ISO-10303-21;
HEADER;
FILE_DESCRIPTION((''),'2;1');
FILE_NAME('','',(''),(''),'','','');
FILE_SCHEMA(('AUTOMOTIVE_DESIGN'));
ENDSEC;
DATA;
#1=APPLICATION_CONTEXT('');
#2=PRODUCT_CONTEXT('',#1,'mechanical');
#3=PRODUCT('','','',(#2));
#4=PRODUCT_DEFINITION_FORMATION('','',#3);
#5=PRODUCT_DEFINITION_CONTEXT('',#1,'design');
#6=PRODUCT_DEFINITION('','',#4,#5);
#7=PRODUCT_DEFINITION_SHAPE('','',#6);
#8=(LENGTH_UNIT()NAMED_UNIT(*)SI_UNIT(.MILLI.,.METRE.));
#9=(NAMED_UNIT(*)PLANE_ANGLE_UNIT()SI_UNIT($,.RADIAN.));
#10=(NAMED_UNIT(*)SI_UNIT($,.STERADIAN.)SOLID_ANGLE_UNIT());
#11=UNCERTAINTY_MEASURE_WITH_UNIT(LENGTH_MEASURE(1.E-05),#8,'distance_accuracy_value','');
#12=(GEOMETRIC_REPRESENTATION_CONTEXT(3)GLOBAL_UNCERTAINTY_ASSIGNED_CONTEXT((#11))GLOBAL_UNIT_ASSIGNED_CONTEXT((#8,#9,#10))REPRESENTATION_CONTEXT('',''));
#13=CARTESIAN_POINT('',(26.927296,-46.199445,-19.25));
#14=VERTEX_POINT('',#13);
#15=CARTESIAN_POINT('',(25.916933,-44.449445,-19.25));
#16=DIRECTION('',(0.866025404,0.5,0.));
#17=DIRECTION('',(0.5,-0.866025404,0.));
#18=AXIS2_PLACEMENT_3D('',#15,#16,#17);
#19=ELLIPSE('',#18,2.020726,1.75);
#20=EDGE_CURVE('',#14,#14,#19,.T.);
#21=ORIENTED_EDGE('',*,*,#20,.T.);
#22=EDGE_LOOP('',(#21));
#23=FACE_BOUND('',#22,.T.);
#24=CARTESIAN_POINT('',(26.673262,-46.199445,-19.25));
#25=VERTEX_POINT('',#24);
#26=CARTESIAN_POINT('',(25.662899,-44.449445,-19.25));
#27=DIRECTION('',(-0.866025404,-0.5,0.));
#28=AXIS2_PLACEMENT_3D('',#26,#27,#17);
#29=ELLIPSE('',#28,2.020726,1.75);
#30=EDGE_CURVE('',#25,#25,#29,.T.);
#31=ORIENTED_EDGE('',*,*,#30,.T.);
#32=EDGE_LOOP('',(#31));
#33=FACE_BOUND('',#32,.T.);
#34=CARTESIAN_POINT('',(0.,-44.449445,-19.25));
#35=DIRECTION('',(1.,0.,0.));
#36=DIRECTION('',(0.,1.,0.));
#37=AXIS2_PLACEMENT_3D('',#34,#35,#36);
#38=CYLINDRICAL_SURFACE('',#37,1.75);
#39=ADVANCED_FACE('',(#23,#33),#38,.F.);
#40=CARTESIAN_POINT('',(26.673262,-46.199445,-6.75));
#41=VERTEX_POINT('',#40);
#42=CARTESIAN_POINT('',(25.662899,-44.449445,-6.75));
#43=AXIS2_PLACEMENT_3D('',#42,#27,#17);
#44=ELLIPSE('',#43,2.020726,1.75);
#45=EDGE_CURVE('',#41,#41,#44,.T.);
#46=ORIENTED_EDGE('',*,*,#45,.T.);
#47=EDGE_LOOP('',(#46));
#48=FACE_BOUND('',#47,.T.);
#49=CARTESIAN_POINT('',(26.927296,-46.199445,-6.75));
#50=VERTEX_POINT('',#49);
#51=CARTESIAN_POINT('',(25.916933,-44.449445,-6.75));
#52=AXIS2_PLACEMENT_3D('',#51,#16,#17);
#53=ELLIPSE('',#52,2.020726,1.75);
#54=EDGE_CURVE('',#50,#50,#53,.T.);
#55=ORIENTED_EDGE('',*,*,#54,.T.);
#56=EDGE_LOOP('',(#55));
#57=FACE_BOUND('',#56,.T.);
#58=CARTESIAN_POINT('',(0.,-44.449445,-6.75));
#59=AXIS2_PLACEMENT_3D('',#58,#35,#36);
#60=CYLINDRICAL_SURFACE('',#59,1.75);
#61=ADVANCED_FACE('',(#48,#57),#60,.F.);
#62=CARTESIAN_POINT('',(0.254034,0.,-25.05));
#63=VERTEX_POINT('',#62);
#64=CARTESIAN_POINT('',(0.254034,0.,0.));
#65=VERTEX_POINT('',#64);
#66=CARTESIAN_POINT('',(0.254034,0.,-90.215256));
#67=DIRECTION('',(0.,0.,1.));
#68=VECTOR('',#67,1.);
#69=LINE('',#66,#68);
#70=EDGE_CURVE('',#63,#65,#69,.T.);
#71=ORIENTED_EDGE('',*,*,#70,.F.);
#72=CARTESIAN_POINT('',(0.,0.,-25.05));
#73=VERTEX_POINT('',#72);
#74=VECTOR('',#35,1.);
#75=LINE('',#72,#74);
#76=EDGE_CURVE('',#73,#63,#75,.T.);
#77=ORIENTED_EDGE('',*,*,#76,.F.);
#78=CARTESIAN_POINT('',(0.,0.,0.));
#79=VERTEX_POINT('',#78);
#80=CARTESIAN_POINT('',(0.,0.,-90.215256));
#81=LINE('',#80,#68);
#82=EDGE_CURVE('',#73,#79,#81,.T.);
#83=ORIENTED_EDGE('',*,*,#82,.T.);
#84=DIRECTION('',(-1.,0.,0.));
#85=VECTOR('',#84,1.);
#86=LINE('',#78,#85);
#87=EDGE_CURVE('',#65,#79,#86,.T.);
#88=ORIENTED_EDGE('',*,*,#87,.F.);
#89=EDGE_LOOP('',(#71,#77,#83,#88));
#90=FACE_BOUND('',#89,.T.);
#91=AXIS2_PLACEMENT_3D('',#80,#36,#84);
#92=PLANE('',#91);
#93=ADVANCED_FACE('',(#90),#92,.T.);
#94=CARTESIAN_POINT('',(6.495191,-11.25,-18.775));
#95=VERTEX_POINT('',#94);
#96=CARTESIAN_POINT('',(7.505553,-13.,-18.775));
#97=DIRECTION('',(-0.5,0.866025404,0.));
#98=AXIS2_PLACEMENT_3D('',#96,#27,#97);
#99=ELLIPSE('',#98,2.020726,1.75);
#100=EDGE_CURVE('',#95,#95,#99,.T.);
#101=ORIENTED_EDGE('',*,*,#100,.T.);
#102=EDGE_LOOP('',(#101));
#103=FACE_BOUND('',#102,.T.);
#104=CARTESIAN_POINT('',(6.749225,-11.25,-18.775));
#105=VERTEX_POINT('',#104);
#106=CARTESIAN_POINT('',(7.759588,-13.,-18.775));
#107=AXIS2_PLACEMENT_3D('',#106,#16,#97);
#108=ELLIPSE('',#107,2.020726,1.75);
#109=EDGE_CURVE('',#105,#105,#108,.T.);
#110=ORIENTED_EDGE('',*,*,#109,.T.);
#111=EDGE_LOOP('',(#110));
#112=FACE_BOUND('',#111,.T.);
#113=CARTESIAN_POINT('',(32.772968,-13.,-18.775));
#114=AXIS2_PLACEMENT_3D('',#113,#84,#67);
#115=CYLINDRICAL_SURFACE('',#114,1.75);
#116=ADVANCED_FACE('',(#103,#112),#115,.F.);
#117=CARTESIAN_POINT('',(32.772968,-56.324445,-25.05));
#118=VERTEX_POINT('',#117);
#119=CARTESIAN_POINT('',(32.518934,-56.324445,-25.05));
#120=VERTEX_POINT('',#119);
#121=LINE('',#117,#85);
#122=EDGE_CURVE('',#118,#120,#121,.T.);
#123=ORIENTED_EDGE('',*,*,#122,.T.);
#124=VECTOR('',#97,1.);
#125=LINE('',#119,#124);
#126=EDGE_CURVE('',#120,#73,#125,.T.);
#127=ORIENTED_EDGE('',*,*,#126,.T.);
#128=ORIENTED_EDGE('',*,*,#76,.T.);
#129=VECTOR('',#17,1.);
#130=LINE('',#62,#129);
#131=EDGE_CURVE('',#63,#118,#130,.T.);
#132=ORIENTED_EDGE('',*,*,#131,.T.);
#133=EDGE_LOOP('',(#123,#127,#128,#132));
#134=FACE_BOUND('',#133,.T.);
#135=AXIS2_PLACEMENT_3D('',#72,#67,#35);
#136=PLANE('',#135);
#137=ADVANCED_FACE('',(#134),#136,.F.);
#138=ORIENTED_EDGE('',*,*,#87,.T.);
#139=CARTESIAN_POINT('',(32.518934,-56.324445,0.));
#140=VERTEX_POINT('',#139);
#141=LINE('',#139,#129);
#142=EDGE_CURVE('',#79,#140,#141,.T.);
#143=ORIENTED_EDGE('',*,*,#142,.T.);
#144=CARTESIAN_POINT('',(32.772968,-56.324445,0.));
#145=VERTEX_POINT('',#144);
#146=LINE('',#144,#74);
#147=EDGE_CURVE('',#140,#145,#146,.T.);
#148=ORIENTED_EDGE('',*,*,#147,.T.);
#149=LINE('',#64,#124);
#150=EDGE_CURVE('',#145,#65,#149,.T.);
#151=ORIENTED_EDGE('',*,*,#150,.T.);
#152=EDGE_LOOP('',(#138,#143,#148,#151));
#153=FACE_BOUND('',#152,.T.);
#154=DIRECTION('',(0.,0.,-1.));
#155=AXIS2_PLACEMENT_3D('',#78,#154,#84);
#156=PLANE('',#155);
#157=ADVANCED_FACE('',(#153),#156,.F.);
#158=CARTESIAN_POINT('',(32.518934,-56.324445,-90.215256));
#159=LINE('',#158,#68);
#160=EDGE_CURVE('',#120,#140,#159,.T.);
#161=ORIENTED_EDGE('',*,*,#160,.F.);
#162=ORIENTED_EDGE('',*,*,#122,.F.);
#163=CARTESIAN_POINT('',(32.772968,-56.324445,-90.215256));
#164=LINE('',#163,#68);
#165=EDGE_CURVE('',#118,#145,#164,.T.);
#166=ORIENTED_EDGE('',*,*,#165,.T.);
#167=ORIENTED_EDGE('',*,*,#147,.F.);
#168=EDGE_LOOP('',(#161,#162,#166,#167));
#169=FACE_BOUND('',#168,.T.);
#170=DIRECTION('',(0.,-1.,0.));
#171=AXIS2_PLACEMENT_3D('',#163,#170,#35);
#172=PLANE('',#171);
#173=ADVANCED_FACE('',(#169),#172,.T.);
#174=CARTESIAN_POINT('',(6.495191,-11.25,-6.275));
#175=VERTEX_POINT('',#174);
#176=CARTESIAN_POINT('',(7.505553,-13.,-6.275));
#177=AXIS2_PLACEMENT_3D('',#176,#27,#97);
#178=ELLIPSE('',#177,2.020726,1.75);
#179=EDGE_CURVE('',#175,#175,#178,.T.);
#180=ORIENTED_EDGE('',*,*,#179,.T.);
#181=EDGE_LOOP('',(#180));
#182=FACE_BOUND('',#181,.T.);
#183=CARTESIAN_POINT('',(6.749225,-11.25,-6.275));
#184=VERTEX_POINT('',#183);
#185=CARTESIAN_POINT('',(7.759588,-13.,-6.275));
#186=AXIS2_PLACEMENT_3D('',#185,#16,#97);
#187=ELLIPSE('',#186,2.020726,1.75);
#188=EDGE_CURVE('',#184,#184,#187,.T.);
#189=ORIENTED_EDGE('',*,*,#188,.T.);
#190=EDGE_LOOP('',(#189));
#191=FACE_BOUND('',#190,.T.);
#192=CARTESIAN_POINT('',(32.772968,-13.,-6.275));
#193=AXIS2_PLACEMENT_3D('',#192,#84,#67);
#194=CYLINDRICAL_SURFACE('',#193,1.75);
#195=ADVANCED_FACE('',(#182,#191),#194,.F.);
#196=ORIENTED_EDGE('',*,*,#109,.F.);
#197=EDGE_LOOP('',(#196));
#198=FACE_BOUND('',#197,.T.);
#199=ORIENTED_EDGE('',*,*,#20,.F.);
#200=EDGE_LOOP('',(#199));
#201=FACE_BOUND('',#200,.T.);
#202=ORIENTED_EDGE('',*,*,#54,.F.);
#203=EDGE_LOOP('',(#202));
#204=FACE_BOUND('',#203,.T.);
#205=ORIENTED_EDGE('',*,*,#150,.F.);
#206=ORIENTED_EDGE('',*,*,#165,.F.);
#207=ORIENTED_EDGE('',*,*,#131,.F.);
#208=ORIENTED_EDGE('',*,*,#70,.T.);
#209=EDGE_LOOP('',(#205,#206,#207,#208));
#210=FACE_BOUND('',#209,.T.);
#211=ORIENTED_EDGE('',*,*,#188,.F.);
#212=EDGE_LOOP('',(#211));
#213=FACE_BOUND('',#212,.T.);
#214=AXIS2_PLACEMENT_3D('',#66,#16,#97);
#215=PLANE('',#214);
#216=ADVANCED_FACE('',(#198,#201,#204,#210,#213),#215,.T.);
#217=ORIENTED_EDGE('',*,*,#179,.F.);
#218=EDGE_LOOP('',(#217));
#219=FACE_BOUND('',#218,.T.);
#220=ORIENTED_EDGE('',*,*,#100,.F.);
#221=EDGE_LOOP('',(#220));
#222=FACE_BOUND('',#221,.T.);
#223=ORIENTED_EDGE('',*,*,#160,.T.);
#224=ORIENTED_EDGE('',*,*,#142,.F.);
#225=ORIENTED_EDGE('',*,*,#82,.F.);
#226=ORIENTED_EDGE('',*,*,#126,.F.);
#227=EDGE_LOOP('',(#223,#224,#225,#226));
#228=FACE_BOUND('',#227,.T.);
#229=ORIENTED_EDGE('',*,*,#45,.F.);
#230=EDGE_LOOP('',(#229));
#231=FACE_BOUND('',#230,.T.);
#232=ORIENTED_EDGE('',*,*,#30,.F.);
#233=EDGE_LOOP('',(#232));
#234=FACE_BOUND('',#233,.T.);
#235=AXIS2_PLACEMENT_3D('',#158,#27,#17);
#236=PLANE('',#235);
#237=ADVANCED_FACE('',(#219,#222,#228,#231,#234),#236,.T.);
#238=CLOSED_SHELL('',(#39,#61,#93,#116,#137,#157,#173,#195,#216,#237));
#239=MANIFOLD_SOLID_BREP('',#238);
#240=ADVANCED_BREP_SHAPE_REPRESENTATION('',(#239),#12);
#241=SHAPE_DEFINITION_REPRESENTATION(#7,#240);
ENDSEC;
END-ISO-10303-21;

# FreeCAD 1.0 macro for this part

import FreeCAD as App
import Part
import Sketcher
Q = App.Units.Quantity

doc = App.newDocument("Part")
body = doc.addObject("PartDesign::Body", "Body")

# Sketch on XY plane
sketch1 = body.newObject("Sketcher::SketchObject", "Sketch")
sketch1.AttachmentSupport = (doc.getObject("XY_Plane"), [""])
sketch1.MapMode = "FlatFace"
sketch1.addGeometry(Part.LineSegment(App.Vector(0.25, 0, 0), App.Vector(0, 0, 0)), False)
sketch1.addGeometry(Part.LineSegment(App.Vector(0, 0, 0), App.Vector(32.52, -56.32, 0)), False)
sketch1.addGeometry(Part.LineSegment(App.Vector(32.52, -56.32, 0), App.Vector(32.77, -56.32, 0)), False)
sketch1.addGeometry(Part.LineSegment(App.Vector(32.77, -56.32, 0), App.Vector(0.25, 0, 0)), False)
sketch1.addConstraint(Sketcher.Constraint("Coincident", 0, 2, 1, 1))
sketch1.addConstraint(Sketcher.Constraint("Coincident", 1, 2, 2, 1))
sketch1.addConstraint(Sketcher.Constraint("Coincident", 2, 2, 3, 1))
sketch1.addConstraint(Sketcher.Constraint("Coincident", 3, 2, 0, 1))
sketch1.addConstraint(Sketcher.Constraint("Horizontal", 0))
sketch1.addConstraint(Sketcher.Constraint("Horizontal", 2))
sketch1.addConstraint(Sketcher.Constraint("Coincident", 0, 2, -1, 1))
sketch1.addConstraint(Sketcher.Constraint("Parallel", 1, 3))
sketch1.addConstraint(Sketcher.Constraint("Angle", 1, Q("-60 deg")))
sketch1.addConstraint(Sketcher.Constraint("DistanceX", 3, 2, 1, 2, Q("32.264899 mm")))
sketch1.addConstraint(Sketcher.Constraint("DistanceX", 0, 2, 0, 1, Q("0.254034 mm")))
pad1 = body.newObject("PartDesign::Pad", "Pad")
pad1.Profile = sketch1
pad1.Length = 25.05
pad1.Reversed = True

# Sketch on YZ plane
sketch2 = body.newObject("Sketcher::SketchObject", "Sketch001")
sketch2.AttachmentSupport = (doc.getObject("YZ_Plane"), [""])
sketch2.MapMode = "FlatFace"
sketch2.AttachmentOffset = App.Placement(App.Vector(0, 0, -4.876016), App.Rotation())
sketch2.addGeometry(Part.Circle(App.Vector(-13, -18.8, 0), App.Vector(0, 0, 1), 1.8), False)
sketch2.addGeometry(Part.Circle(App.Vector(-13, -6.3, 0), App.Vector(0, 0, 1), 1.8), False)
sketch2.addConstraint(Sketcher.Constraint("Equal", 0, 1))
sketch2.addConstraint(Sketcher.Constraint("Vertical", 0, 3, 1, 3))
sketch2.addConstraint(Sketcher.Constraint("Diameter", 0, Q("3.5 mm")))
sketch2.addConstraint(Sketcher.Constraint("DistanceX", 0, 3, -1, 1, Q("13 mm")))
sketch2.addConstraint(Sketcher.Constraint("DistanceY", 0, 3, 1, 3, Q("12.5 mm")))
sketch2.addConstraint(Sketcher.Constraint("DistanceY", 0, 3, -1, 1, Q("18.775 mm")))
pocket1 = body.newObject("PartDesign::Pocket", "Pocket")
pocket1.Profile = sketch2
pocket1.Type = "ThroughAll"
pocket1.Reversed = True

# Sketch on YZ plane
sketch3 = body.newObject("Sketcher::SketchObject", "Sketch002")
sketch3.AttachmentSupport = (doc.getObject("YZ_Plane"), [""])
sketch3.MapMode = "FlatFace"
sketch3.AttachmentOffset = App.Placement(App.Vector(0, 0, 37.648984), App.Rotation())
sketch3.addGeometry(Part.Circle(App.Vector(-44.4, -6.8, 0), App.Vector(0, 0, 1), 1.8), False)
sketch3.addGeometry(Part.Circle(App.Vector(-44.4, -19.2, 0), App.Vector(0, 0, 1), 1.8), False)
sketch3.addConstraint(Sketcher.Constraint("Equal", 0, 1))
sketch3.addConstraint(Sketcher.Constraint("Vertical", 0, 3, 1, 3))
sketch3.addConstraint(Sketcher.Constraint("Diameter", 0, Q("3.5 mm")))
sketch3.addConstraint(Sketcher.Constraint("DistanceY", 1, 3, 0, 3, Q("12.5 mm")))
sketch3.addConstraint(Sketcher.Constraint("DistanceY", 0, 3, -1, 1, Q("6.75 mm")))
sketch3.addConstraint(Sketcher.Constraint("DistanceX", 0, 3, -1, 1, Q("44.449445 mm")))
pocket2 = body.newObject("PartDesign::Pocket", "Pocket001")
pocket2.Profile = sketch3
pocket2.Type = "ThroughAll"

doc.recompute()
